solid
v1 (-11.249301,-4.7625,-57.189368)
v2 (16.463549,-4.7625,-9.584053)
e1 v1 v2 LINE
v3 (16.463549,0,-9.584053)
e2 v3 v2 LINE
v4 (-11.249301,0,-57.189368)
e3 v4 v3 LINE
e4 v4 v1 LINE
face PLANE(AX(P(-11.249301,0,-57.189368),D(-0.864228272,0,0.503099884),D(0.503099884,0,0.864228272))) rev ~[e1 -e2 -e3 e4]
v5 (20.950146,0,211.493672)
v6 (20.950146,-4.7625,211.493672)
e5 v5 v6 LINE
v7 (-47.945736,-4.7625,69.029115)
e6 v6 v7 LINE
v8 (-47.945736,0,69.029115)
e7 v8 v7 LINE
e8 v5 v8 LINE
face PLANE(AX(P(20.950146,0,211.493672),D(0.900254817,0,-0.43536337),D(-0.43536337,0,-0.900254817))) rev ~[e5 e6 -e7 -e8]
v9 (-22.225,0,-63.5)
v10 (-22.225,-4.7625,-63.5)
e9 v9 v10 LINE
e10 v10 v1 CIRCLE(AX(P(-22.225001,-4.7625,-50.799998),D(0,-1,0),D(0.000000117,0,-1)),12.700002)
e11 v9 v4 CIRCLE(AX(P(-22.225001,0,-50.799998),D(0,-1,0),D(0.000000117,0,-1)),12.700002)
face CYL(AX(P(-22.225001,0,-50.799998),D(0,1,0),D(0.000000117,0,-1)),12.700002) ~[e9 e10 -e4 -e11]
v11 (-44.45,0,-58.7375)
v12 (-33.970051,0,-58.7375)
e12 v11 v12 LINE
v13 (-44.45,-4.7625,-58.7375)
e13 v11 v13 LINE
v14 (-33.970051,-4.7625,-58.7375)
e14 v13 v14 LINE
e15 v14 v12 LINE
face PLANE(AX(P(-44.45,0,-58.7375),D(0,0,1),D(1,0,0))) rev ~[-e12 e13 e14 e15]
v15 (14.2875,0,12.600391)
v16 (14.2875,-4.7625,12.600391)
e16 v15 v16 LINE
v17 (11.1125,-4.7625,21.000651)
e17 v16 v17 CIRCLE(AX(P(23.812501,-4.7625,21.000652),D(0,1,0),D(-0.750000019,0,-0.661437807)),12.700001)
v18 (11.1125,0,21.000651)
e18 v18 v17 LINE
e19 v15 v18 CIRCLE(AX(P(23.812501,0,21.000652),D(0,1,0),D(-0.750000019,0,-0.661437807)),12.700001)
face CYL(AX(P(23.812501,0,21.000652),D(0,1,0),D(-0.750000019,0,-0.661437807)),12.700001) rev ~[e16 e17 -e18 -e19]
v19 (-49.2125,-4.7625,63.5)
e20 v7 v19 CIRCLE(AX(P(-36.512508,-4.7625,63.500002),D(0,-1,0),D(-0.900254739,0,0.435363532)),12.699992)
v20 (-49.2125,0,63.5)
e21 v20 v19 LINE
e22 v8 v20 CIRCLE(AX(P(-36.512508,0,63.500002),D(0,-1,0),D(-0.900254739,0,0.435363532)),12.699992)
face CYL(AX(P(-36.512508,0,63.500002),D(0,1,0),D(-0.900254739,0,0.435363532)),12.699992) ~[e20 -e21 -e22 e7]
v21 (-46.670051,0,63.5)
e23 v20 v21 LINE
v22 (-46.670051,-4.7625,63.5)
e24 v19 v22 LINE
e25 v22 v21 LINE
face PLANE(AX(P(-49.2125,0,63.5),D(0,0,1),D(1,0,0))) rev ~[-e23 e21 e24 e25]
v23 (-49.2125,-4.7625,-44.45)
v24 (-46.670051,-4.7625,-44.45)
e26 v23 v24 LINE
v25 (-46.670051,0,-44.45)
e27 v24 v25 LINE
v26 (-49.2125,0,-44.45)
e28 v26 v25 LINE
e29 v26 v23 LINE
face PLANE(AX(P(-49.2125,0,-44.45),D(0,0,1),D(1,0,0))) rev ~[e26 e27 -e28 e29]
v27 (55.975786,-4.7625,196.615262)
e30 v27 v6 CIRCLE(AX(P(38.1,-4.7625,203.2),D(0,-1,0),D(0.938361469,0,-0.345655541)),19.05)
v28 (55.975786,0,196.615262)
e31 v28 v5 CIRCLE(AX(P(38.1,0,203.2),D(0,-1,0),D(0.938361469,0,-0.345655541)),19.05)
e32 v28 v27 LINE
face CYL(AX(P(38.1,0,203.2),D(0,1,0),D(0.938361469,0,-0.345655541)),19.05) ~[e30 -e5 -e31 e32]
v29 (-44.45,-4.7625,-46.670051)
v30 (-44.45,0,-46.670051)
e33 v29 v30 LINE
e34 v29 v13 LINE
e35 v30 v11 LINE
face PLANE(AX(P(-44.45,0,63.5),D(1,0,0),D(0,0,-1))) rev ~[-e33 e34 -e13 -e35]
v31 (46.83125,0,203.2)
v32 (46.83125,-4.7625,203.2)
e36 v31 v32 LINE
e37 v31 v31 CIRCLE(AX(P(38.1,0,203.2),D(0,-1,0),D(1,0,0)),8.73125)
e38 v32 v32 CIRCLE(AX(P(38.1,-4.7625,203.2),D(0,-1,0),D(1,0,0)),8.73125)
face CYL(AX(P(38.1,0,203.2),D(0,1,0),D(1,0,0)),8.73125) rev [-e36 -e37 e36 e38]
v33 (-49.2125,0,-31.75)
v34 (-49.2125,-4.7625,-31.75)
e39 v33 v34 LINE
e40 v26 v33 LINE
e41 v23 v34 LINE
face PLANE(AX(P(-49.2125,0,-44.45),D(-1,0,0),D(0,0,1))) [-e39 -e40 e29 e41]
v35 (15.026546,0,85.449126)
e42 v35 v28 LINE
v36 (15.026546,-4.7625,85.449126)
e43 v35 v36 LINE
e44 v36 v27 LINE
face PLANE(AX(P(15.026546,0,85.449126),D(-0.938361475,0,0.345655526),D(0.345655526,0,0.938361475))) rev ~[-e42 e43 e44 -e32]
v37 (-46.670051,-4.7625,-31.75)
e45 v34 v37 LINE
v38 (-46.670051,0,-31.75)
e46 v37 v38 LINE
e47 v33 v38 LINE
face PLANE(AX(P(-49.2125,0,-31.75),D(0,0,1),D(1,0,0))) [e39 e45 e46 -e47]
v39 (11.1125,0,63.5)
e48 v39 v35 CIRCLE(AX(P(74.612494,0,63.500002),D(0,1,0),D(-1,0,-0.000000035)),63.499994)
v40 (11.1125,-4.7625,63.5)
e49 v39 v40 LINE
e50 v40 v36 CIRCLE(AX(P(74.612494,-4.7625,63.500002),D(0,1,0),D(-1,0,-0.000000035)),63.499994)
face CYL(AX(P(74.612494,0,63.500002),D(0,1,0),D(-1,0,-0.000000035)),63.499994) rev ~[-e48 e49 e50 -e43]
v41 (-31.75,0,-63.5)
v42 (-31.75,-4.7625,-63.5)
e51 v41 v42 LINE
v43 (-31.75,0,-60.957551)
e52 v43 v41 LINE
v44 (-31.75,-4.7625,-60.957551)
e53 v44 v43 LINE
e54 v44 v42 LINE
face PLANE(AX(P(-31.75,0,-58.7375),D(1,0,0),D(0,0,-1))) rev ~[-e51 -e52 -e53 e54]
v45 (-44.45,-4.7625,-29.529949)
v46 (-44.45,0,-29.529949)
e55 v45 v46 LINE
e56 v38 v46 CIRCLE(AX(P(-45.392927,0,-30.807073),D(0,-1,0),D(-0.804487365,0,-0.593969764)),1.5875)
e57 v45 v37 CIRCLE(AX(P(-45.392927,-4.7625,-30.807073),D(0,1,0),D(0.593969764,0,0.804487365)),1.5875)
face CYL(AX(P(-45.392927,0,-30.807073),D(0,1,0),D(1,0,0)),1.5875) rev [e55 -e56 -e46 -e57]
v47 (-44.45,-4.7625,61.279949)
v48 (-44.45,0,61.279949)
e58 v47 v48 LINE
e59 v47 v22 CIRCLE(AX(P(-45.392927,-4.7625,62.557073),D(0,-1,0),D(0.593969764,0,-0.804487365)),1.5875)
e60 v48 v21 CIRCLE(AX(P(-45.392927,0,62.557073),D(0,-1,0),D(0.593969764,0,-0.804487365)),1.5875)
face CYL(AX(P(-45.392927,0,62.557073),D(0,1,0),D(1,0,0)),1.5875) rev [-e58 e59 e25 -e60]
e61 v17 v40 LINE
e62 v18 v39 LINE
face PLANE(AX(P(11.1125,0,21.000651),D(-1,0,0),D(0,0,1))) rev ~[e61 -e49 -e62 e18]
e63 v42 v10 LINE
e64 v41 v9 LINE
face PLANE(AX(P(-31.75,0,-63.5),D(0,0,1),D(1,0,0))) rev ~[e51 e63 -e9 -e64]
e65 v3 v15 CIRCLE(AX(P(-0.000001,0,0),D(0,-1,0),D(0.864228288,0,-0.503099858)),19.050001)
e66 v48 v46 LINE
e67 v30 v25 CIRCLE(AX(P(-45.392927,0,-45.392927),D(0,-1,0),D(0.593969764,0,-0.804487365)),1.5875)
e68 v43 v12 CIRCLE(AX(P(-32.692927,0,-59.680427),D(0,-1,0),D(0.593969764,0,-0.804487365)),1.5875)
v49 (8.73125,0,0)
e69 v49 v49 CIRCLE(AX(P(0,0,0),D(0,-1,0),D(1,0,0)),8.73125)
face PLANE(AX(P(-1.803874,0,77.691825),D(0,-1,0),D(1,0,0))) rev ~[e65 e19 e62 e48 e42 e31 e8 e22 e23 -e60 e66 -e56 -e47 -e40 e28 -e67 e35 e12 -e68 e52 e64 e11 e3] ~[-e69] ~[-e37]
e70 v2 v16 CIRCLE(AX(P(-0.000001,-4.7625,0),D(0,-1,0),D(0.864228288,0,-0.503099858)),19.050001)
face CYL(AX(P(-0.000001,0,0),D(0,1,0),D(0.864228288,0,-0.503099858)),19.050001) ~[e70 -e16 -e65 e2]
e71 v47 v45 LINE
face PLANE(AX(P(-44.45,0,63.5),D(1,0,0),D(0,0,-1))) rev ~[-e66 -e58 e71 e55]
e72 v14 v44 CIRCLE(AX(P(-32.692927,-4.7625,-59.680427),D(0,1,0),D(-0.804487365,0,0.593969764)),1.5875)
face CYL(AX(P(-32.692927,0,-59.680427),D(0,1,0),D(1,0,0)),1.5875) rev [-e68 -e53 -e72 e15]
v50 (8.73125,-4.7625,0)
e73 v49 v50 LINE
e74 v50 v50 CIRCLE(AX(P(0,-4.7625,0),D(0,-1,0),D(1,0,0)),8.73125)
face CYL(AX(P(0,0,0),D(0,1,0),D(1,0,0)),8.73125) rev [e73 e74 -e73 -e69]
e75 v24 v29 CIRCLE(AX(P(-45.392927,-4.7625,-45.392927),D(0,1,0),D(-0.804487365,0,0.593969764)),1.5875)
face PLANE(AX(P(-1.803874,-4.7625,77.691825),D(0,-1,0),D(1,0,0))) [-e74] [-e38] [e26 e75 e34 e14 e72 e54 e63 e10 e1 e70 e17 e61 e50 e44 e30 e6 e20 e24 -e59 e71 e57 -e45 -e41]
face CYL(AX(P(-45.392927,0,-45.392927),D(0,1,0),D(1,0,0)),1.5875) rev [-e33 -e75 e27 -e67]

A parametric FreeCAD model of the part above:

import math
import FreeCAD as App
import Part
import Sketcher
from FreeCAD import Vector
Q = App.Units.Quantity


def add_polygon(sketch, points):
    """Adds a closed chain of lines whose ends are joined by coincident constraints."""
    first, n = sketch.GeometryCount, len(points)
    for a, b in zip(points, points[1:] + points[:1]):
        sketch.addGeometry(Part.LineSegment(App.Vector(*a, 0), App.Vector(*b, 0)), False)
    for i in range(n):
        sketch.addConstraint(Sketcher.Constraint("Coincident", first + i, 2, first + (i + 1) % n, 1))

doc = App.newDocument("Part")
params = doc.addObject("Spreadsheet::Sheet", "Params")
for row, (alias, value) in enumerate([
    ("sketch1_radius", "0.5000001 in"),
    ("sketch1_radius2", "0.75 in"),
    ("sketch1_diameter", "0.6875 in"),
    ("sketch1_width", "0.5 in"),
    ("sketch1_width2", "0.1875 in"),
    ("pad1_length", "0.1875 in"),
    ("sketch2_height", "0.5 in"),
    ("sketch2_width", "0.1875 in"),
    ("pad2_length", "0.1875 in"),
    ("sketch3_diameter", "0.125 in"),
], start=1):
    params.set(f"A{row}", alias)
    params.set(f"B{row}", "=" + value)
    params.setAlias(f"B{row}", alias)

body = doc.addObject("PartDesign::Body", "Body")

sketch1 = body.newObject("Sketcher::SketchObject", "Sketch")
sketch1.AttachmentSupport = (doc.getObject("XZ_Plane"), [""])
sketch1.MapMode = "FlatFace"
sketch1.addGeometry(Part.LineSegment(Vector(-49.2, 63.5, 0), Vector(-44.5, 63.5, 0)), False)
sketch1.addGeometry(Part.LineSegment(Vector(-44.5, 63.5, 0), Vector(-44.5, -58.7, 0)), False)
sketch1.addGeometry(Part.LineSegment(Vector(-44.5, -58.7, 0), Vector(-31.8, -58.7, 0)), False)
sketch1.addGeometry(Part.LineSegment(Vector(-31.8, -58.7, 0), Vector(-31.8, -63.5, 0)), False)
sketch1.addGeometry(Part.LineSegment(Vector(-31.8, -63.5, 0), Vector(-22.2, -63.5, 0)), False)
sketch1.addGeometry(Part.ArcOfCircle(Part.Circle(Vector(-22.2, -50.8, 0), Vector(0, 0, 1), 12.7), math.radians(-90), math.radians(-30)), False)
sketch1.addGeometry(Part.LineSegment(Vector(-11.2, -57.2, 0), Vector(16.5, -9.6, 0)), False)
sketch1.addGeometry(Part.ArcOfCircle(Part.Circle(Vector(0, 0, 0), Vector(0, 0, 1), 19.1), math.radians(-30), math.radians(41)), False)
sketch1.addGeometry(Part.ArcOfCircle(Part.Circle(Vector(23.8, 21, 0), Vector(0, 0, 1), 12.7), math.radians(-180), math.radians(-139)), False)
sketch1.addGeometry(Part.LineSegment(Vector(11.1, 21, 0), Vector(11.1, 63.5, 0)), False)
sketch1.addGeometry(Part.ArcOfCircle(Part.Circle(Vector(74.6, 63.5, 0), Vector(0, 0, 1), 63.5), math.radians(160), math.radians(180)), False)
sketch1.addGeometry(Part.LineSegment(Vector(15, 85.4, 0), Vector(56, 196.6, 0)), False)
sketch1.addGeometry(Part.ArcOfCircle(Part.Circle(Vector(38.1, 203.2, 0), Vector(0, 0, 1), 19), math.radians(-20), math.radians(154)), False)
sketch1.addGeometry(Part.LineSegment(Vector(21, 211.5, 0), Vector(-47.9, 69, 0)), False)
sketch1.addGeometry(Part.ArcOfCircle(Part.Circle(Vector(-36.5, 63.5, 0), Vector(0, 0, 1), 12.7), math.radians(154), math.radians(180)), False)
sketch1.addGeometry(Part.Circle(Vector(0, 0, 0), Vector(0, 0, 1), 8.7), False)
sketch1.addGeometry(Part.Circle(Vector(38.1, 203.2, 0), Vector(0, 0, 1), 8.7), False)
sketch1.addConstraint(Sketcher.Constraint("Coincident", 0, 2, 1, 1))
sketch1.addConstraint(Sketcher.Constraint("Coincident", 1, 2, 2, 1))
sketch1.addConstraint(Sketcher.Constraint("Coincident", 2, 2, 3, 1))
sketch1.addConstraint(Sketcher.Constraint("Coincident", 3, 2, 4, 1))
sketch1.addConstraint(Sketcher.Constraint("Tangent", 4, 2, 5, 1))
sketch1.addConstraint(Sketcher.Constraint("Tangent", 5, 2, 6, 1))
sketch1.addConstraint(Sketcher.Constraint("Tangent", 6, 2, 7, 1))
sketch1.addConstraint(Sketcher.Constraint("Tangent", 7, 2, 8, 2))
sketch1.addConstraint(Sketcher.Constraint("Tangent", 8, 1, 9, 1))
sketch1.addConstraint(Sketcher.Constraint("Tangent", 9, 2, 10, 2))
sketch1.addConstraint(Sketcher.Constraint("Tangent", 10, 1, 11, 1))
sketch1.addConstraint(Sketcher.Constraint("Tangent", 11, 2, 12, 1))
sketch1.addConstraint(Sketcher.Constraint("Tangent", 12, 2, 13, 1))
sketch1.addConstraint(Sketcher.Constraint("Tangent", 13, 2, 14, 1))
sketch1.addConstraint(Sketcher.Constraint("Coincident", 14, 2, 0, 1))
sketch1.addConstraint(Sketcher.Constraint("Horizontal", 0))
sketch1.addConstraint(Sketcher.Constraint("Vertical", 1))
sketch1.addConstraint(Sketcher.Constraint("Horizontal", 2))
sketch1.addConstraint(Sketcher.Constraint("Vertical", 3))
sketch1.addConstraint(Sketcher.Constraint("Horizontal", 4))
sketch1.addConstraint(Sketcher.Constraint("Vertical", 9))
sketch1.addConstraint(Sketcher.Constraint("Coincident", 7, 3, -1, 1))
sketch1.addConstraint(Sketcher.Constraint("Coincident", 15, 3, -1, 1))
sketch1.addConstraint(Sketcher.Constraint("Coincident", 16, 3, 12, 3))
sketch1.addConstraint(Sketcher.Constraint("Equal", 5, 8))
sketch1.addConstraint(Sketcher.Constraint("Equal", 7, 12))
sketch1.addConstraint(Sketcher.Constraint("Equal", 15, 16))
sketch1.addConstraint(Sketcher.Constraint("Horizontal", 10, 3, 14, 3))
sketch1.addConstraint(Sketcher.Constraint("Horizontal", 14, 3, 0, 2))
sketch1.addConstraint(Sketcher.Constraint("Equal", 0, 3))
sketch1.addConstraint(Sketcher.Constraint("Radius", 5, Q("0.5000001 in")))
sketch1.addConstraint(Sketcher.Constraint("Radius", 7, Q("0.75 in")))
sketch1.addConstraint(Sketcher.Constraint("Diameter", 15, Q("0.6875 in")))
sketch1.addConstraint(Sketcher.Constraint("DistanceX", 2, 1, 2, 2, Q("0.5 in")))
sketch1.addConstraint(Sketcher.Constraint("DistanceY", 5, 3, -1, 1, Q("1.9999999 in")))
sketch1.addConstraint(Sketcher.Constraint("DistanceY", -1, 1, 12, 3, Q("8 in")))
sketch1.addConstraint(Sketcher.Constraint("DistanceY", -1, 1, 10, 3, Q("2.5000001 in")))
sketch1.addConstraint(Sketcher.Constraint("DistanceX", -1, 1, 12, 3, Q("1.5 in")))
sketch1.addConstraint(Sketcher.Constraint("DistanceX", 0, 1, 0, 2, Q("0.1875 in")))
sketch1.addConstraint(Sketcher.Constraint("DistanceX", 4, 1, 4, 2, Q("0.375 in")))
sketch1.addConstraint(Sketcher.Constraint("DistanceX", 0, 2, -1, 1, Q("1.75 in")))
sketch1.addConstraint(Sketcher.Constraint("DistanceX", -1, 1, 8, 3, Q("0.9375 in")))
sketch1.addConstraint(Sketcher.Constraint("Radius", 14, Q("12.699992 mm")))
sketch1.addConstraint(Sketcher.Constraint("DistanceX", 14, 3, 10, 3, Q("4.3750001 in")))
sketch1.setExpression("Constraints[30]", "Params.sketch1_radius")
sketch1.setExpression("Constraints[31]", "Params.sketch1_radius2")
sketch1.setExpression("Constraints[32]", "Params.sketch1_diameter")
sketch1.setExpression("Constraints[33]", "Params.sketch1_width")
sketch1.setExpression("Constraints[38]", "Params.sketch1_width2")
pad1 = body.newObject("PartDesign::Pad", "Pad")
pad1.Profile = sketch1
pad1.setExpression("Length", "Params.pad1_length")

sketch2 = body.newObject("Sketcher::SketchObject", "Sketch001")
sketch2.AttachmentSupport = (doc.getObject("XZ_Plane"), [""])
sketch2.MapMode = "FlatFace"
add_polygon(sketch2, [(-49.2, -31.8), (-49.2, -44.5), (-44.5, -44.5), (-44.5, -31.8)])
sketch2.addConstraint(Sketcher.Constraint("Vertical", 0))
sketch2.addConstraint(Sketcher.Constraint("Horizontal", 1))
sketch2.addConstraint(Sketcher.Constraint("Vertical", 2))
sketch2.addConstraint(Sketcher.Constraint("Horizontal", 3))
sketch2.addConstraint(Sketcher.Constraint("DistanceY", 0, 2, 0, 1, Q("0.5 in")))
sketch2.addConstraint(Sketcher.Constraint("DistanceX", 1, 1, 1, 2, Q("0.1875 in")))
sketch2.addConstraint(Sketcher.Constraint("DistanceY", 0, 2, -1, 1, Q("1.75 in")))
sketch2.addConstraint(Sketcher.Constraint("DistanceX", 1, 2, -1, 1, Q("1.75 in")))
sketch2.setExpression("Constraints[8]", "Params.sketch2_height")
sketch2.setExpression("Constraints[9]", "Params.sketch2_width")
pad2 = body.newObject("PartDesign::Pad", "Pad001")
pad2.Profile = sketch2
pad2.setExpression("Length", "Params.pad2_length")

sketch3 = body.newObject("Sketcher::SketchObject", "Sketch002")
sketch3.AttachmentSupport = (doc.getObject("XZ_Plane"), [""])
sketch3.MapMode = "FlatFace"
sketch3.addGeometry(Part.Circle(Vector(-45.4, 62.6, 0), Vector(0, 0, 1), 1.6), False)
sketch3.addGeometry(Part.Circle(Vector(-32.7, -59.7, 0), Vector(0, 0, 1), 1.6), False)
sketch3.addGeometry(Part.Circle(Vector(-45.4, -45.4, 0), Vector(0, 0, 1), 1.6), False)
sketch3.addGeometry(Part.Circle(Vector(-45.4, -30.8, 0), Vector(0, 0, 1), 1.6), False)
sketch3.addConstraint(Sketcher.Constraint("Equal", 0, 1))
sketch3.addConstraint(Sketcher.Constraint("Equal", 1, 2))
sketch3.addConstraint(Sketcher.Constraint("Equal", 2, 3))
sketch3.addConstraint(Sketcher.Constraint("Vertical", 0, 3, 2, 3))
sketch3.addConstraint(Sketcher.Constraint("Vertical", 2, 3, 3, 3))
sketch3.addConstraint(Sketcher.Constraint("Diameter", 0, Q("0.125 in")))
sketch3.addConstraint(Sketcher.Constraint("DistanceX", 0, 3, 1, 3, Q("0.5 in")))
sketch3.addConstraint(Sketcher.Constraint("DistanceY", 2, 3, 0, 3, Q("4.25 in")))
sketch3.addConstraint(Sketcher.Constraint("DistanceY", 1, 3, 0, 3, Q("4.8125 in")))
sketch3.addConstraint(Sketcher.Constraint("DistanceX", 0, 3, -1, 1, Q("45.392927 mm")))
sketch3.addConstraint(Sketcher.Constraint("DistanceY", -1, 1, 0, 3, Q("62.557073 mm")))
sketch3.addConstraint(Sketcher.Constraint("DistanceY", 3, 3, -1, 1, Q("30.807073 mm")))
sketch3.setExpression("Constraints[5]", "Params.sketch3_diameter")
pocket1 = body.newObject("PartDesign::Pocket", "Pocket")
pocket1.Profile = sketch3
pocket1.Type = "ThroughAll"
pocket1.Reversed = True

doc.recompute()
